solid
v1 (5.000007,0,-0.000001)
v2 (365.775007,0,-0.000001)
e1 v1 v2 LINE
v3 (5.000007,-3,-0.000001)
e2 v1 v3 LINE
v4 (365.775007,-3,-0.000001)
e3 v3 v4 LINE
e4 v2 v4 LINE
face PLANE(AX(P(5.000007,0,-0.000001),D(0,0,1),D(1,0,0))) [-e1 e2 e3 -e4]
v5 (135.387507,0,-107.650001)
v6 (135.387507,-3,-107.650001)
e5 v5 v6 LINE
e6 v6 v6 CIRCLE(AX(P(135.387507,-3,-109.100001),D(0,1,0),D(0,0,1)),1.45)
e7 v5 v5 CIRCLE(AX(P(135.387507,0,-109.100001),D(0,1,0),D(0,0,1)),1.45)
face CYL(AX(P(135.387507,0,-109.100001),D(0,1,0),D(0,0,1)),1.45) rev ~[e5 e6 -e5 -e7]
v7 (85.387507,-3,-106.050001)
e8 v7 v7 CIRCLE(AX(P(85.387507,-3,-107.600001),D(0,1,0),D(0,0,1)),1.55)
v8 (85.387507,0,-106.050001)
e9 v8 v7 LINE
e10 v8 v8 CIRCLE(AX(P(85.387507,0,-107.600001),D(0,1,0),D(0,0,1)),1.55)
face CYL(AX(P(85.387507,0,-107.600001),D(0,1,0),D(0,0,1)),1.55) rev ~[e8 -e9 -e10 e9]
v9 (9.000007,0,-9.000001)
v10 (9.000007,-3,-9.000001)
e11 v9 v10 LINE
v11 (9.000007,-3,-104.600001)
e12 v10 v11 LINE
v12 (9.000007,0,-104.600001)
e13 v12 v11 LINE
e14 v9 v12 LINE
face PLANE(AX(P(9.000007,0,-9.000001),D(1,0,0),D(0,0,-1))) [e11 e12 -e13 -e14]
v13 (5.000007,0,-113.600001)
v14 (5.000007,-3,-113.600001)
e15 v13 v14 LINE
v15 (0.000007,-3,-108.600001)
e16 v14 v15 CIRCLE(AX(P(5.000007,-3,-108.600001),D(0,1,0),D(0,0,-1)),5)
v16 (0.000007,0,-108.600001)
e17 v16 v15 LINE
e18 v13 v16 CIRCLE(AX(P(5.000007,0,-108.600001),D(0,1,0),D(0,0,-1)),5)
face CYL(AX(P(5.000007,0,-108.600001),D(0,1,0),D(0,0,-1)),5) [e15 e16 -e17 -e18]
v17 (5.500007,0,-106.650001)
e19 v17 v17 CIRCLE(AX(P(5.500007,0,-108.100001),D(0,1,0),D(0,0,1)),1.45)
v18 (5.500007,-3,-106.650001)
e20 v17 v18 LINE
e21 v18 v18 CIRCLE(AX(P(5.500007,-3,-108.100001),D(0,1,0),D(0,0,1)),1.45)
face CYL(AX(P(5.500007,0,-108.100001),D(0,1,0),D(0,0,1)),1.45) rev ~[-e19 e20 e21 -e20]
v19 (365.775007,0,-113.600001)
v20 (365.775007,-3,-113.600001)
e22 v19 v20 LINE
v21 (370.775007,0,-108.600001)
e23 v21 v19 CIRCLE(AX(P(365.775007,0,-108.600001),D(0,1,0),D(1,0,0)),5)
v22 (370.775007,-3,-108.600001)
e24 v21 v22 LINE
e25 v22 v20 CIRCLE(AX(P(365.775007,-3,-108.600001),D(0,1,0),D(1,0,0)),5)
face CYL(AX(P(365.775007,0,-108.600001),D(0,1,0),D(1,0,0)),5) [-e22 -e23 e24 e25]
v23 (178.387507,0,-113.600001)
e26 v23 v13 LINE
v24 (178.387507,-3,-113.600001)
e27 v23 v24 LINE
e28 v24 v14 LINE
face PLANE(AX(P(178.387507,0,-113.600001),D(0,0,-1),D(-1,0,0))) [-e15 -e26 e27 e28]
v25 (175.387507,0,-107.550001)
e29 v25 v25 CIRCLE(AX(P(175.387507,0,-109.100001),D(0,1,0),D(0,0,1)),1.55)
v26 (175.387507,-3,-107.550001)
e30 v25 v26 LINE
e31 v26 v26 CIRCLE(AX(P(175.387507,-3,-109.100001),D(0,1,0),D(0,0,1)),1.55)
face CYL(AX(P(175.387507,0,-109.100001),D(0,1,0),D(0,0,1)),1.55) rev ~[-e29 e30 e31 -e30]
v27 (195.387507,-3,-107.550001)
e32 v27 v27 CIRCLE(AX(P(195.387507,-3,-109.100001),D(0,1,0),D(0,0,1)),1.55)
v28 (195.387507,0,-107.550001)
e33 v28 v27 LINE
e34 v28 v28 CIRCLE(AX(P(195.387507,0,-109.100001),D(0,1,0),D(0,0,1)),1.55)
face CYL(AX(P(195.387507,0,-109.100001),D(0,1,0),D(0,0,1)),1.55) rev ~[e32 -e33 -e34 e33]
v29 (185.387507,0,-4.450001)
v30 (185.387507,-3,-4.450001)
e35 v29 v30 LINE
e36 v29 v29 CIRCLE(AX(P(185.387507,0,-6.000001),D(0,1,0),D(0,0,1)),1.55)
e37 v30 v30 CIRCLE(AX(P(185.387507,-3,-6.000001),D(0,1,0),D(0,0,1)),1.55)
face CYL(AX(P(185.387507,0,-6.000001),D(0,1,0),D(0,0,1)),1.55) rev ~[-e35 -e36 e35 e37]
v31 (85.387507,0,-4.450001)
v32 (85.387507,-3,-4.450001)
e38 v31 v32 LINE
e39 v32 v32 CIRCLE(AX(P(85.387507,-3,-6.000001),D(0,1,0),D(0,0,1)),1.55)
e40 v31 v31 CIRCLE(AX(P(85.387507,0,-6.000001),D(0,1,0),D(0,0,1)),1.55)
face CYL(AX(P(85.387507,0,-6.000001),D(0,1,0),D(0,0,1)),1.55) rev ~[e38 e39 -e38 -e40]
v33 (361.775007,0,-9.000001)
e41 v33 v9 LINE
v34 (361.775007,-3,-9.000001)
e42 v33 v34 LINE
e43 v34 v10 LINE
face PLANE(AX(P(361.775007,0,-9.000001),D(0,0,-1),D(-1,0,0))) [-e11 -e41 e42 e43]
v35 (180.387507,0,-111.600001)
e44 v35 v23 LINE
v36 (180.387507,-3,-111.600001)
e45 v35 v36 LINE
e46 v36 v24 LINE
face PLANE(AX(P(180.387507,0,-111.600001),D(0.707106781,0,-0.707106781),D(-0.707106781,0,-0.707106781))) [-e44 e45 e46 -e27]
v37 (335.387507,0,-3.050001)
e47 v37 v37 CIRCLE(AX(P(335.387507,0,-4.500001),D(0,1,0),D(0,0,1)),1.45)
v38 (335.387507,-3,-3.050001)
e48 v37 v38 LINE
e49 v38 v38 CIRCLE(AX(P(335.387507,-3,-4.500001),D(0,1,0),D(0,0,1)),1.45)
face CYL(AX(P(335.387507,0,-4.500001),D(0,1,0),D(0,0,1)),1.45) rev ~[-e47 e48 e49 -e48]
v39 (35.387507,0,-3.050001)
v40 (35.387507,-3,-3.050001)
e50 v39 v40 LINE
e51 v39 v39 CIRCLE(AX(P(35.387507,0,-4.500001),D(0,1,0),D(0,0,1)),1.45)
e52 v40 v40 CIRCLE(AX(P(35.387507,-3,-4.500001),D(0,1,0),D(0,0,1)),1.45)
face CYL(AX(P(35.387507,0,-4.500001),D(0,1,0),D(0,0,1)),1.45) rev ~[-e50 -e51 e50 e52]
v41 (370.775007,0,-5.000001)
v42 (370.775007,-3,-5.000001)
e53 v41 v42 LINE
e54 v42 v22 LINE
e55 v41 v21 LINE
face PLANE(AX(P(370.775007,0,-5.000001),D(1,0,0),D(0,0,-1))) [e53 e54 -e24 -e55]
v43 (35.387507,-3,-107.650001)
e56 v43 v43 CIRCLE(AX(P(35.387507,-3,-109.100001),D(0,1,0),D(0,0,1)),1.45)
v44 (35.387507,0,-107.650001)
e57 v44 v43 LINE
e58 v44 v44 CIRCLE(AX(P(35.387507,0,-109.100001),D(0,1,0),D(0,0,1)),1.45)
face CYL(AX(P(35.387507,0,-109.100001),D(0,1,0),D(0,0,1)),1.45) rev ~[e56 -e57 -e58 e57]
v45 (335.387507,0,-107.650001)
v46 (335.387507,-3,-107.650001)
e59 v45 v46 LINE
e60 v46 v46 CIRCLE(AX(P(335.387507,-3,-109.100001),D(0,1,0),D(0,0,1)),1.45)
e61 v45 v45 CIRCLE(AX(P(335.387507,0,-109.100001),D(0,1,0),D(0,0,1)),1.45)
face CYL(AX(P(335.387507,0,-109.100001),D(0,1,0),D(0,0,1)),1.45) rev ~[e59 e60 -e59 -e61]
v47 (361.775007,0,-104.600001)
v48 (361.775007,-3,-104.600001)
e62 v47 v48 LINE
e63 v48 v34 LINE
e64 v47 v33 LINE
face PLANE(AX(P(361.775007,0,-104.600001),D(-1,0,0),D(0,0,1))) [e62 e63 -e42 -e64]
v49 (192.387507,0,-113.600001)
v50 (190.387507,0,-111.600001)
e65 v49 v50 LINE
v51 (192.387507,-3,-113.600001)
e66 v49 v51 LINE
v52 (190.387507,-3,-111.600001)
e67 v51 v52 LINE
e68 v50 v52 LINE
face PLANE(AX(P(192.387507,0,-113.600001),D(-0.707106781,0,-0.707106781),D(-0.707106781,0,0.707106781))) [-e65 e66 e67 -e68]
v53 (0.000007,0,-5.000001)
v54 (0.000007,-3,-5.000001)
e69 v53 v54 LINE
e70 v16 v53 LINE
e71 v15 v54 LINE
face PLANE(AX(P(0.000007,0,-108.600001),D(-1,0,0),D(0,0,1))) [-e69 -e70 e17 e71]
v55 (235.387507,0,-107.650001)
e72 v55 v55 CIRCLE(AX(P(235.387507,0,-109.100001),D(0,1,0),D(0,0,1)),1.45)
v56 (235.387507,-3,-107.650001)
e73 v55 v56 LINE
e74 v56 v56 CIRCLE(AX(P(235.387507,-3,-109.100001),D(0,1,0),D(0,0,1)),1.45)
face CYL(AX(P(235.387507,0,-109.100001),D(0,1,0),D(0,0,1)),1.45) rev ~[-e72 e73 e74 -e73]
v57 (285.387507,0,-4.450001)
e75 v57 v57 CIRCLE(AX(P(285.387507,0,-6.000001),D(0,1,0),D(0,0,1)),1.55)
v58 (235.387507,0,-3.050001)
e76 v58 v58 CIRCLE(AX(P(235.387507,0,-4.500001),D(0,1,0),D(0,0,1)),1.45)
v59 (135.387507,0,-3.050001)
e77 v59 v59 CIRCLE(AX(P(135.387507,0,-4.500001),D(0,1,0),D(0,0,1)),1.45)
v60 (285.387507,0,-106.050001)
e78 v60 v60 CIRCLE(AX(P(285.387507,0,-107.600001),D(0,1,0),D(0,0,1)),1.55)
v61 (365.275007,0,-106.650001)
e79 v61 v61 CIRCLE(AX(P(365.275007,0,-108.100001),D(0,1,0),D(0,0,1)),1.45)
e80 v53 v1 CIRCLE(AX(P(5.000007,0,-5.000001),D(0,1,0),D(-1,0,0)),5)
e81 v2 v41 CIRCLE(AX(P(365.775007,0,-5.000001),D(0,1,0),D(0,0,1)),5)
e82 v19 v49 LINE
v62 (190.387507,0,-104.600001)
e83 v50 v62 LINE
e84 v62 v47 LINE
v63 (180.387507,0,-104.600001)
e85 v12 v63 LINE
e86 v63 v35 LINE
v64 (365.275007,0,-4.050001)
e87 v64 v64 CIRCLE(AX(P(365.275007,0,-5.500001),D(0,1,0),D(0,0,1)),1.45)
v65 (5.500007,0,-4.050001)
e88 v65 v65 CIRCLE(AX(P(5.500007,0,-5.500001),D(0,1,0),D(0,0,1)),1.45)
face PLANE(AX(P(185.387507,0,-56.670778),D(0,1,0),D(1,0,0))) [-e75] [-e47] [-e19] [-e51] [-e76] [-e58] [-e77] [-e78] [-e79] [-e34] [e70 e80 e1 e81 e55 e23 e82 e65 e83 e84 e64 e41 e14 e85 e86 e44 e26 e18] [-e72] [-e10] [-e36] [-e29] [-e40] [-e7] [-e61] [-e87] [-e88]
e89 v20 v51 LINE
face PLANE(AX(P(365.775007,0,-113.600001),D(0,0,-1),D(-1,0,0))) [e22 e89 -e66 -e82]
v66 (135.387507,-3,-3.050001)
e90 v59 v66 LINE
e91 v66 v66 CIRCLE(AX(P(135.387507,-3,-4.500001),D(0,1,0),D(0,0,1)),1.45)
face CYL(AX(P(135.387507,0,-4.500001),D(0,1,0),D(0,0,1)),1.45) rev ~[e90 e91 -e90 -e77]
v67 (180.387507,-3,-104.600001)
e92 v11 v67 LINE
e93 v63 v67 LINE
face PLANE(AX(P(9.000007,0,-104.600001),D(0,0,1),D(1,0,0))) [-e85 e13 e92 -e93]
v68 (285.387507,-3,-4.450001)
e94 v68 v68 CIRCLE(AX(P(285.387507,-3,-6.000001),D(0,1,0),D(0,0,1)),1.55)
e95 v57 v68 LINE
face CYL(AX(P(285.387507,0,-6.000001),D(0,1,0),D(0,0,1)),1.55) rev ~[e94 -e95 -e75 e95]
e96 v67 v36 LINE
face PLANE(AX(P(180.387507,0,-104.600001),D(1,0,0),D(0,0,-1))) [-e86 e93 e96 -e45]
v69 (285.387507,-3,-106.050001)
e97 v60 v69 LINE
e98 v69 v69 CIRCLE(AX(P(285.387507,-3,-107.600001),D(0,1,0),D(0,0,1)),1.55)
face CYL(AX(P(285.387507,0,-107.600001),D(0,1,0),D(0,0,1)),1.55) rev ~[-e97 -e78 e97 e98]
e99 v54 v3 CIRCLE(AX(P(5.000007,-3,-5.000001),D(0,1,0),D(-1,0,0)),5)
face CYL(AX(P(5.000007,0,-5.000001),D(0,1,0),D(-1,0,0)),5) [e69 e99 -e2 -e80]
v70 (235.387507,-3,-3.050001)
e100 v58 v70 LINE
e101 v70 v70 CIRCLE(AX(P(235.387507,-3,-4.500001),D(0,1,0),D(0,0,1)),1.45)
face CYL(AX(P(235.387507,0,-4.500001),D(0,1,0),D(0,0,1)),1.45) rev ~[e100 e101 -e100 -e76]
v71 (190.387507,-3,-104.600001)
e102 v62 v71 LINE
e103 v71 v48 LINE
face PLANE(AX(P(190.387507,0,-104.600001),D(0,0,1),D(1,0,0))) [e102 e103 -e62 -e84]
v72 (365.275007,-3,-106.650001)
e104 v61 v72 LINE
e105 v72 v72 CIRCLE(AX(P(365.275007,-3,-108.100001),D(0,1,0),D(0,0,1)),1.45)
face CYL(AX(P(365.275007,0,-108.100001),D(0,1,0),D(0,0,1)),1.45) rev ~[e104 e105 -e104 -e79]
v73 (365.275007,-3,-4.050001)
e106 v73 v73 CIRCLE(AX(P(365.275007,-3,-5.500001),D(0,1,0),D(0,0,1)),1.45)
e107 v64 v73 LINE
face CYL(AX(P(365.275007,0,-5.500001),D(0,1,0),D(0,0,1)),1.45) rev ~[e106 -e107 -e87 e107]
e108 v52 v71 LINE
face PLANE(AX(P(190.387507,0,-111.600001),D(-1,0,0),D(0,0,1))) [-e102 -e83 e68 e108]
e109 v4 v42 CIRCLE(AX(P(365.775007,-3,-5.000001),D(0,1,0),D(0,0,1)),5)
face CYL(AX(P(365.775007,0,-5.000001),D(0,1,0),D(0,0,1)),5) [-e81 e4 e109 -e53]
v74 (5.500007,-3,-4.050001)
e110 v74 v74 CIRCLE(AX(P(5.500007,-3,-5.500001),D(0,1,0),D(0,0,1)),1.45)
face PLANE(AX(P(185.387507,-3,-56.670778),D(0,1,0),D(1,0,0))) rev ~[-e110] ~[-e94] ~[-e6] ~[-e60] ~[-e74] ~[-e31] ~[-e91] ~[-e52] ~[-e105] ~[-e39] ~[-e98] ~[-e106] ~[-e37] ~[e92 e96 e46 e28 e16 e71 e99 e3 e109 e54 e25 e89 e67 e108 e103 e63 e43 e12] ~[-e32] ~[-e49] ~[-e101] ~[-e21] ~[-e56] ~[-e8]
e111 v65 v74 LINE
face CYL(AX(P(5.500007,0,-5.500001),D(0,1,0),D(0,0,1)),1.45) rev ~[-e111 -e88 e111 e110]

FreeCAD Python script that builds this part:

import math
import FreeCAD as App
import Part
import Sketcher

doc = App.newDocument("Part")
body = doc.addObject("PartDesign::Body", "Body")

# Sketch on XZ plane
sketch1 = body.newObject("Sketcher::SketchObject", "Sketch")
sketch1.AttachmentSupport = (doc.getObject("XZ_Plane"), [""])
sketch1.MapMode = "FlatFace"
sketch1.addGeometry([
    Part.LineSegment(App.Vector(0, -108.6, 0), App.Vector(0, -5, 0)),  # 0
    Part.ArcOfCircle(Part.Circle(App.Vector(5, -5, 0), App.Vector(0, 0, 1), 5), math.radians(90), math.radians(180)),  # 1
    Part.LineSegment(App.Vector(5, 0, 0), App.Vector(365.8, 0, 0)),  # 2
    Part.ArcOfCircle(Part.Circle(App.Vector(365.8, -5, 0), App.Vector(0, 0, 1), 5), math.radians(0), math.radians(90)),  # 3
    Part.LineSegment(App.Vector(370.8, -5, 0), App.Vector(370.8, -108.6, 0)),  # 4
    Part.ArcOfCircle(Part.Circle(App.Vector(365.8, -108.6, 0), App.Vector(0, 0, 1), 5), math.radians(-90), math.radians(0)),  # 5
    Part.LineSegment(App.Vector(365.8, -113.6, 0), App.Vector(192.4, -113.6, 0)),  # 6
    Part.LineSegment(App.Vector(192.4, -113.6, 0), App.Vector(190.4, -111.6, 0)),  # 7
    Part.LineSegment(App.Vector(190.4, -111.6, 0), App.Vector(190.4, -104.6, 0)),  # 8
    Part.LineSegment(App.Vector(190.4, -104.6, 0), App.Vector(361.8, -104.6, 0)),  # 9
    Part.LineSegment(App.Vector(361.8, -104.6, 0), App.Vector(361.8, -9, 0)),  # 10
    Part.LineSegment(App.Vector(361.8, -9, 0), App.Vector(9, -9, 0)),  # 11
    Part.LineSegment(App.Vector(9, -9, 0), App.Vector(9, -104.6, 0)),  # 12
    Part.LineSegment(App.Vector(9, -104.6, 0), App.Vector(180.4, -104.6, 0)),  # 13
    Part.LineSegment(App.Vector(180.4, -104.6, 0), App.Vector(180.4, -111.6, 0)),  # 14
    Part.LineSegment(App.Vector(180.4, -111.6, 0), App.Vector(178.4, -113.6, 0)),  # 15
    Part.LineSegment(App.Vector(178.4, -113.6, 0), App.Vector(5, -113.6, 0)),  # 16
    Part.ArcOfCircle(Part.Circle(App.Vector(5, -108.6, 0), App.Vector(0, 0, 1), 5), math.radians(180), math.radians(270)),  # 17
    Part.Circle(App.Vector(5.5, -5.5, 0), App.Vector(0, 0, 1), 1.4),  # 18
    Part.Circle(App.Vector(35.4, -4.5, 0), App.Vector(0, 0, 1), 1.4),  # 19
    Part.Circle(App.Vector(85.4, -6, 0), App.Vector(0, 0, 1), 1.6),  # 20
    Part.Circle(App.Vector(135.4, -4.5, 0), App.Vector(0, 0, 1), 1.4),  # 21
    Part.Circle(App.Vector(185.4, -6, 0), App.Vector(0, 0, 1), 1.6),  # 22
    Part.Circle(App.Vector(235.4, -4.5, 0), App.Vector(0, 0, 1), 1.4),  # 23
    Part.Circle(App.Vector(285.4, -6, 0), App.Vector(0, 0, 1), 1.6),  # 24
    Part.Circle(App.Vector(335.4, -4.5, 0), App.Vector(0, 0, 1), 1.4),  # 25
    Part.Circle(App.Vector(365.3, -5.5, 0), App.Vector(0, 0, 1), 1.4),  # 26
    Part.Circle(App.Vector(5.5, -108.1, 0), App.Vector(0, 0, 1), 1.4),  # 27
    Part.Circle(App.Vector(35.4, -109.1, 0), App.Vector(0, 0, 1), 1.4),  # 28
    Part.Circle(App.Vector(85.4, -107.6, 0), App.Vector(0, 0, 1), 1.6),  # 29
    Part.Circle(App.Vector(135.4, -109.1, 0), App.Vector(0, 0, 1), 1.4),  # 30
    Part.Circle(App.Vector(175.4, -109.1, 0), App.Vector(0, 0, 1), 1.6),  # 31
    Part.Circle(App.Vector(195.4, -109.1, 0), App.Vector(0, 0, 1), 1.6),  # 32
    Part.Circle(App.Vector(235.4, -109.1, 0), App.Vector(0, 0, 1), 1.4),  # 33
    Part.Circle(App.Vector(285.4, -107.6, 0), App.Vector(0, 0, 1), 1.6),  # 34
    Part.Circle(App.Vector(335.4, -109.1, 0), App.Vector(0, 0, 1), 1.4),  # 35
    Part.Circle(App.Vector(365.3, -108.1, 0), App.Vector(0, 0, 1), 1.4),  # 36
], False)
sketch1.addConstraint([
    Sketcher.Constraint("Tangent", 0, 2, 1, 2),
    Sketcher.Constraint("Tangent", 1, 1, 2, 1),
    Sketcher.Constraint("Tangent", 2, 2, 3, 2),
    Sketcher.Constraint("Tangent", 3, 1, 4, 1),
    Sketcher.Constraint("Tangent", 4, 2, 5, 2),
    Sketcher.Constraint("Tangent", 5, 1, 6, 1),
    Sketcher.Constraint("Coincident", 6, 2, 7, 1),
    Sketcher.Constraint("Coincident", 7, 2, 8, 1),
    Sketcher.Constraint("Coincident", 8, 2, 9, 1),
    Sketcher.Constraint("Coincident", 9, 2, 10, 1),
    Sketcher.Constraint("Coincident", 10, 2, 11, 1),
    Sketcher.Constraint("Coincident", 11, 2, 12, 1),
    Sketcher.Constraint("Coincident", 12, 2, 13, 1),
    Sketcher.Constraint("Coincident", 13, 2, 14, 1),
    Sketcher.Constraint("Coincident", 14, 2, 15, 1),
    Sketcher.Constraint("Coincident", 15, 2, 16, 1),
    Sketcher.Constraint("Tangent", 16, 2, 17, 2),
    Sketcher.Constraint("Tangent", 17, 1, 0, 1),
    Sketcher.Constraint("Vertical", 0),
    Sketcher.Constraint("Horizontal", 2),
    Sketcher.Constraint("Vertical", 4),
    Sketcher.Constraint("Horizontal", 6),
    Sketcher.Constraint("Vertical", 8),
    Sketcher.Constraint("Horizontal", 9),
    Sketcher.Constraint("Vertical", 10),
    Sketcher.Constraint("Horizontal", 11),
    Sketcher.Constraint("Vertical", 12),
    Sketcher.Constraint("Horizontal", 13),
    Sketcher.Constraint("Vertical", 14),
    Sketcher.Constraint("Horizontal", 16),
    Sketcher.Constraint("Equal", 1, 3),
    Sketcher.Constraint("Equal", 3, 5),
    Sketcher.Constraint("Equal", 5, 17),
    Sketcher.Constraint("Equal", 18, 19),
    Sketcher.Constraint("Equal", 19, 21),
    Sketcher.Constraint("Equal", 20, 22),
    Sketcher.Constraint("Equal", 21, 23),
    Sketcher.Constraint("Equal", 22, 24),
    Sketcher.Constraint("Equal", 23, 25),
    Sketcher.Constraint("Equal", 25, 26),
    Sketcher.Constraint("Equal", 26, 27),
    Sketcher.Constraint("Equal", 27, 28),
    Sketcher.Constraint("Equal", 24, 29),
    Sketcher.Constraint("Equal", 28, 30),
    Sketcher.Constraint("Equal", 29, 31),
    Sketcher.Constraint("Equal", 31, 32),
    Sketcher.Constraint("Equal", 30, 33),
    Sketcher.Constraint("Equal", 32, 34),
    Sketcher.Constraint("Equal", 33, 35),
    Sketcher.Constraint("Equal", 35, 36),
    Sketcher.Constraint("PointOnObject", 1, 1, -1),
    Sketcher.Constraint("Perpendicular", 7, 15),
    Sketcher.Constraint("Horizontal", 5, 3, 17, 3),
    Sketcher.Constraint("Horizontal", 19, 3, 21, 3),
    Sketcher.Constraint("Horizontal", 20, 3, 22, 3),
    Sketcher.Constraint("Horizontal", 21, 3, 23, 3),
    Sketcher.Constraint("Horizontal", 22, 3, 24, 3),
    Sketcher.Constraint("Horizontal", 23, 3, 25, 3),
    Sketcher.Constraint("Horizontal", 18, 3, 26, 3),
    Sketcher.Constraint("Horizontal", 28, 3, 30, 3),
    Sketcher.Constraint("Horizontal", 30, 3, 31, 3),
    Sketcher.Constraint("Horizontal", 31, 3, 32, 3),
    Sketcher.Constraint("Horizontal", 32, 3, 33, 3),
    Sketcher.Constraint("Horizontal", 29, 3, 34, 3),
    Sketcher.Constraint("Horizontal", 33, 3, 35, 3),
    Sketcher.Constraint("Horizontal", 27, 3, 36, 3),
    Sketcher.Constraint("Horizontal", 9, 2, 12, 2),
    Sketcher.Constraint("Horizontal", 7, 2, 14, 2),
    Sketcher.Constraint("Vertical", 18, 3, 27, 3),
    Sketcher.Constraint("Vertical", 19, 3, 28, 3),
    Sketcher.Constraint("Vertical", 20, 3, 29, 3),
    Sketcher.Constraint("Vertical", 21, 3, 30, 3),
    Sketcher.Constraint("Vertical", 23, 3, 33, 3),
    Sketcher.Constraint("Vertical", 24, 3, 34, 3),
    Sketcher.Constraint("Vertical", 25, 3, 35, 3),
    Sketcher.Constraint("Vertical", 26, 3, 36, 3),
    Sketcher.Constraint("Equal", 9, 13),
    Sketcher.Constraint("Equal", 6, 16),
    Sketcher.Constraint("Equal", 7, 15),
    Sketcher.Constraint("Radius", 1, 5.0),
    Sketcher.Constraint("Diameter", 18, 2.9),
    Sketcher.Constraint("Diameter", 20, 3.1),
    Sketcher.Constraint("DistanceY", 8, 1, 8, 2, 7.0),
    Sketcher.Constraint("DistanceY", 0, 1, 0, 2, 103.6),
    Sketcher.Constraint("DistanceY", 10, 1, 10, 2, 95.6),
    Sketcher.Constraint("DistanceY", 20, 3, -1, 1, 6.000001),
    Sketcher.Constraint("DistanceY", 10, 2, -1, 1, 9.000001),
    Sketcher.Constraint("DistanceY", 18, 3, 19, 3, 1.0),
    Sketcher.Constraint("DistanceX", 19, 3, 20, 3, 50.0),
    Sketcher.Constraint("DistanceX", 20, 3, 21, 3, 50.0),
    Sketcher.Constraint("DistanceX", 21, 3, 22, 3, 50.0),
    Sketcher.Constraint("DistanceX", 22, 3, 23, 3, 50.0),
    Sketcher.Constraint("DistanceX", 23, 3, 24, 3, 50.0),
    Sketcher.Constraint("DistanceX", 24, 3, 25, 3, 50.0),
    Sketcher.Constraint("DistanceY", 28, 3, 27, 3, 1.0),
    Sketcher.Constraint("DistanceY", 17, 3, 29, 3, 1.0),
    Sketcher.Constraint("DistanceX", 30, 3, 31, 3, 40.0),
    Sketcher.Constraint("DistanceX", 31, 3, 32, 3, 20.0),
    Sketcher.Constraint("DistanceX", 6, 2, 32, 3, 3.0),
    Sketcher.Constraint("DistanceX", 9, 2, 5, 3, 4.0),
    Sketcher.Constraint("DistanceX", 31, 3, 13, 2, 5.0),
    Sketcher.Constraint("DistanceY", 18, 3, -1, 1, 5.500001),
    Sketcher.Constraint("DistanceY", 27, 3, -1, 1, 108.100001),
    Sketcher.Constraint("DistanceX", 1, 3, 18, 3, 0.5),
    Sketcher.Constraint("DistanceX", 26, 3, 3, 3, 0.5),
    Sketcher.Constraint("DistanceX", 2, 1, 2, 2, 360.775),
    Sketcher.Constraint("DistanceX", -1, 1, 1, 3, 5.000007),
])
pad1 = body.newObject("PartDesign::Pad", "Pad")
pad1.Profile = sketch1
pad1.Length = 3

doc.recompute()
